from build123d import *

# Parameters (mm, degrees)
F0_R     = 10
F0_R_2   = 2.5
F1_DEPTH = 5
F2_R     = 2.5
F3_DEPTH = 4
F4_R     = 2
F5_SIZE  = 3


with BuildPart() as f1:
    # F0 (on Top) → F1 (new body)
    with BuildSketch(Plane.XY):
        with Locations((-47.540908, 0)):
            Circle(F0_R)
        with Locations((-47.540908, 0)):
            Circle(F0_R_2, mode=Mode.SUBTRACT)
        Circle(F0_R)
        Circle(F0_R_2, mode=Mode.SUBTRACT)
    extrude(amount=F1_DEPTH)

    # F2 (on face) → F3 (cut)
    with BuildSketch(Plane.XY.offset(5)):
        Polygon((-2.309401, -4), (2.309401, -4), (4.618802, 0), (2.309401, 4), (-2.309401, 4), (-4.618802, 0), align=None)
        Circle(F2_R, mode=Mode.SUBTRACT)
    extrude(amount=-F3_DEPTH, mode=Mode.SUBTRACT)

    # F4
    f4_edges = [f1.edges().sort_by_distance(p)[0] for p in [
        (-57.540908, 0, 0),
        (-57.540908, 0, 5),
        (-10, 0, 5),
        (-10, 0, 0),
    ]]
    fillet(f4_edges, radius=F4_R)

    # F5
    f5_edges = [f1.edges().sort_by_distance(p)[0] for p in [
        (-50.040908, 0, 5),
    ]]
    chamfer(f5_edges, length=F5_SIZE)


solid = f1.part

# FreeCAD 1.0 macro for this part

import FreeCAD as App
import Part
import Sketcher

V = App.Vector
Q = App.Units.Quantity


def edges_at(feature, points):
    """Names of the edges that pass closest to the given points."""
    edges = feature.Shape.Edges
    near = lambda p: min(range(len(edges)), key=lambda i: edges[i].distToShape(Part.Vertex(*p))[0])
    return sorted({f"Edge{near(p) + 1}" for p in points})

doc = App.newDocument("Part")
params = doc.addObject("Spreadsheet::Sheet", "Params")
for row, (alias, value) in enumerate([
    ("sketch1_diameter", "20 mm"),
    ("sketch1_diameter2", "5 mm"),
    ("pad1_length", "5 mm"),
    ("sketch2_diameter", "5 mm"),
    ("pocket1_length", "4 mm"),
    ("fillet_radius", "2 mm"),
    ("chamfer_size", "3 mm"),
], start=1):
    params.set(f"A{row}", alias)
    params.set(f"B{row}", "=" + value)
    params.setAlias(f"B{row}", alias)

body = doc.addObject("PartDesign::Body", "Body")
body.AllowCompound = True

# Sketch on XY plane
sketch1 = body.newObject("Sketcher::SketchObject", "Sketch")
sketch1.AttachmentSupport = (doc.getObject("XY_Plane"), [""])
sketch1.MapMode = "FlatFace"
sketch1.addGeometry(Part.Circle(V(-47.5, 0, 0), V(0, 0, 1), 10), False)
sketch1.addGeometry(Part.Circle(V(-47.5, 0, 0), V(0, 0, 1), 2.5), False)
sketch1.addGeometry(Part.Circle(V(0, 0, 0), V(0, 0, 1), 10), False)
sketch1.addGeometry(Part.Circle(V(0, 0, 0), V(0, 0, 1), 2.5), False)
sketch1.addConstraint(Sketcher.Constraint("Coincident", 2, 3, -1, 1))
sketch1.addConstraint(Sketcher.Constraint("Coincident", 3, 3, -1, 1))
sketch1.addConstraint(Sketcher.Constraint("Coincident", 1, 3, 0, 3))
sketch1.addConstraint(Sketcher.Constraint("Equal", 0, 2))
sketch1.addConstraint(Sketcher.Constraint("Equal", 1, 3))
sketch1.addConstraint(Sketcher.Constraint("PointOnObject", 0, 3, -1))
sketch1.addConstraint(Sketcher.Constraint("Diameter", 0, 20.0))
sketch1.addConstraint(Sketcher.Constraint("Diameter", 1, 5.0))
sketch1.addConstraint(Sketcher.Constraint("DistanceX", 0, 3, -1, 1, 47.540908))
sketch1.setExpression("Constraints[6]", "Params.sketch1_diameter")
sketch1.setExpression("Constraints[7]", "Params.sketch1_diameter2")
pad1 = body.newObject("PartDesign::Pad", "Pad")
pad1.Profile = sketch1
pad1.setExpression("Length", "Params.pad1_length")

# Sketch on XY plane
sketch2 = body.newObject("Sketcher::SketchObject", "Sketch001")
sketch2.AttachmentSupport = (doc.getObject("XY_Plane"), [""])
sketch2.MapMode = "FlatFace"
sketch2.AttachmentOffset = App.Placement(V(0, 0, 5), App.Rotation())
sketch2.addGeometry(Part.LineSegment(V(-2.3, -4, 0), V(2.3, -4, 0)), False)
sketch2.addGeometry(Part.LineSegment(V(2.3, -4, 0), V(4.6, 0, 0)), False)
sketch2.addGeometry(Part.LineSegment(V(4.6, 0, 0), V(2.3, 4, 0)), False)
sketch2.addGeometry(Part.LineSegment(V(2.3, 4, 0), V(-2.3, 4, 0)), False)
sketch2.addGeometry(Part.LineSegment(V(-2.3, 4, 0), V(-4.6, 0, 0)), False)
sketch2.addGeometry(Part.LineSegment(V(-4.6, 0, 0), V(-2.3, -4, 0)), False)
sketch2.addGeometry(Part.Circle(V(0, 0, 0), V(0, 0, 1), 2.5), False)
sketch2.addConstraint(Sketcher.Constraint("Coincident", 0, 2, 1, 1))
sketch2.addConstraint(Sketcher.Constraint("Coincident", 1, 2, 2, 1))
sketch2.addConstraint(Sketcher.Constraint("Coincident", 2, 2, 3, 1))
sketch2.addConstraint(Sketcher.Constraint("Coincident", 3, 2, 4, 1))
sketch2.addConstraint(Sketcher.Constraint("Coincident", 4, 2, 5, 1))
sketch2.addConstraint(Sketcher.Constraint("Coincident", 5, 2, 0, 1))
sketch2.addConstraint(Sketcher.Constraint("Horizontal", 0))
sketch2.addConstraint(Sketcher.Constraint("Horizontal", 3))
sketch2.addConstraint(Sketcher.Constraint("Coincident", 6, 3, -1, 1))
sketch2.addConstraint(Sketcher.Constraint("Symmetric", 0, 2, 3, 2, -1, 1))
sketch2.addConstraint(Sketcher.Constraint("Symmetric", 1, 2, 4, 2, -1, 1))
sketch2.addConstraint(Sketcher.Constraint("PointOnObject", 1, 2, -1))
sketch2.addConstraint(Sketcher.Constraint("Parallel", 2, 5))
sketch2.addConstraint(Sketcher.Constraint("Vertical", 0, 2, 2, 2))
sketch2.addConstraint(Sketcher.Constraint("Diameter", 6, 5.0))
sketch2.addConstraint(Sketcher.Constraint("Angle", 1, Q("60.000001 deg")))
sketch2.addConstraint(Sketcher.Constraint("DistanceY", 0, 2, -1, 1, 4.0))
sketch2.addConstraint(Sketcher.Constraint("DistanceX", 0, 1, 0, 2, 4.618802))
sketch2.setExpression("Constraints[14]", "Params.sketch2_diameter")
pocket1 = body.newObject("PartDesign::Pocket", "Pocket")
pocket1.Profile = sketch2
pocket1.setExpression("Length", "Params.pocket1_length")
doc.recompute()

fillet = body.newObject("PartDesign::Fillet", "Fillet")
fillet.Base = (pocket1, edges_at(pocket1, [
    (-57.541, 0, 0),
    (-57.541, 0, 5),
    (-10, 0, 5),
    (-10, 0, 0),
]))
fillet.setExpression("Radius", "Params.fillet_radius")
doc.recompute()

chamfer = body.newObject("PartDesign::Chamfer", "Chamfer")
chamfer.Base = (fillet, edges_at(fillet, [(-50.041, 0, 5)]))
chamfer.setExpression("Size", "Params.chamfer_size")

doc.recompute()
